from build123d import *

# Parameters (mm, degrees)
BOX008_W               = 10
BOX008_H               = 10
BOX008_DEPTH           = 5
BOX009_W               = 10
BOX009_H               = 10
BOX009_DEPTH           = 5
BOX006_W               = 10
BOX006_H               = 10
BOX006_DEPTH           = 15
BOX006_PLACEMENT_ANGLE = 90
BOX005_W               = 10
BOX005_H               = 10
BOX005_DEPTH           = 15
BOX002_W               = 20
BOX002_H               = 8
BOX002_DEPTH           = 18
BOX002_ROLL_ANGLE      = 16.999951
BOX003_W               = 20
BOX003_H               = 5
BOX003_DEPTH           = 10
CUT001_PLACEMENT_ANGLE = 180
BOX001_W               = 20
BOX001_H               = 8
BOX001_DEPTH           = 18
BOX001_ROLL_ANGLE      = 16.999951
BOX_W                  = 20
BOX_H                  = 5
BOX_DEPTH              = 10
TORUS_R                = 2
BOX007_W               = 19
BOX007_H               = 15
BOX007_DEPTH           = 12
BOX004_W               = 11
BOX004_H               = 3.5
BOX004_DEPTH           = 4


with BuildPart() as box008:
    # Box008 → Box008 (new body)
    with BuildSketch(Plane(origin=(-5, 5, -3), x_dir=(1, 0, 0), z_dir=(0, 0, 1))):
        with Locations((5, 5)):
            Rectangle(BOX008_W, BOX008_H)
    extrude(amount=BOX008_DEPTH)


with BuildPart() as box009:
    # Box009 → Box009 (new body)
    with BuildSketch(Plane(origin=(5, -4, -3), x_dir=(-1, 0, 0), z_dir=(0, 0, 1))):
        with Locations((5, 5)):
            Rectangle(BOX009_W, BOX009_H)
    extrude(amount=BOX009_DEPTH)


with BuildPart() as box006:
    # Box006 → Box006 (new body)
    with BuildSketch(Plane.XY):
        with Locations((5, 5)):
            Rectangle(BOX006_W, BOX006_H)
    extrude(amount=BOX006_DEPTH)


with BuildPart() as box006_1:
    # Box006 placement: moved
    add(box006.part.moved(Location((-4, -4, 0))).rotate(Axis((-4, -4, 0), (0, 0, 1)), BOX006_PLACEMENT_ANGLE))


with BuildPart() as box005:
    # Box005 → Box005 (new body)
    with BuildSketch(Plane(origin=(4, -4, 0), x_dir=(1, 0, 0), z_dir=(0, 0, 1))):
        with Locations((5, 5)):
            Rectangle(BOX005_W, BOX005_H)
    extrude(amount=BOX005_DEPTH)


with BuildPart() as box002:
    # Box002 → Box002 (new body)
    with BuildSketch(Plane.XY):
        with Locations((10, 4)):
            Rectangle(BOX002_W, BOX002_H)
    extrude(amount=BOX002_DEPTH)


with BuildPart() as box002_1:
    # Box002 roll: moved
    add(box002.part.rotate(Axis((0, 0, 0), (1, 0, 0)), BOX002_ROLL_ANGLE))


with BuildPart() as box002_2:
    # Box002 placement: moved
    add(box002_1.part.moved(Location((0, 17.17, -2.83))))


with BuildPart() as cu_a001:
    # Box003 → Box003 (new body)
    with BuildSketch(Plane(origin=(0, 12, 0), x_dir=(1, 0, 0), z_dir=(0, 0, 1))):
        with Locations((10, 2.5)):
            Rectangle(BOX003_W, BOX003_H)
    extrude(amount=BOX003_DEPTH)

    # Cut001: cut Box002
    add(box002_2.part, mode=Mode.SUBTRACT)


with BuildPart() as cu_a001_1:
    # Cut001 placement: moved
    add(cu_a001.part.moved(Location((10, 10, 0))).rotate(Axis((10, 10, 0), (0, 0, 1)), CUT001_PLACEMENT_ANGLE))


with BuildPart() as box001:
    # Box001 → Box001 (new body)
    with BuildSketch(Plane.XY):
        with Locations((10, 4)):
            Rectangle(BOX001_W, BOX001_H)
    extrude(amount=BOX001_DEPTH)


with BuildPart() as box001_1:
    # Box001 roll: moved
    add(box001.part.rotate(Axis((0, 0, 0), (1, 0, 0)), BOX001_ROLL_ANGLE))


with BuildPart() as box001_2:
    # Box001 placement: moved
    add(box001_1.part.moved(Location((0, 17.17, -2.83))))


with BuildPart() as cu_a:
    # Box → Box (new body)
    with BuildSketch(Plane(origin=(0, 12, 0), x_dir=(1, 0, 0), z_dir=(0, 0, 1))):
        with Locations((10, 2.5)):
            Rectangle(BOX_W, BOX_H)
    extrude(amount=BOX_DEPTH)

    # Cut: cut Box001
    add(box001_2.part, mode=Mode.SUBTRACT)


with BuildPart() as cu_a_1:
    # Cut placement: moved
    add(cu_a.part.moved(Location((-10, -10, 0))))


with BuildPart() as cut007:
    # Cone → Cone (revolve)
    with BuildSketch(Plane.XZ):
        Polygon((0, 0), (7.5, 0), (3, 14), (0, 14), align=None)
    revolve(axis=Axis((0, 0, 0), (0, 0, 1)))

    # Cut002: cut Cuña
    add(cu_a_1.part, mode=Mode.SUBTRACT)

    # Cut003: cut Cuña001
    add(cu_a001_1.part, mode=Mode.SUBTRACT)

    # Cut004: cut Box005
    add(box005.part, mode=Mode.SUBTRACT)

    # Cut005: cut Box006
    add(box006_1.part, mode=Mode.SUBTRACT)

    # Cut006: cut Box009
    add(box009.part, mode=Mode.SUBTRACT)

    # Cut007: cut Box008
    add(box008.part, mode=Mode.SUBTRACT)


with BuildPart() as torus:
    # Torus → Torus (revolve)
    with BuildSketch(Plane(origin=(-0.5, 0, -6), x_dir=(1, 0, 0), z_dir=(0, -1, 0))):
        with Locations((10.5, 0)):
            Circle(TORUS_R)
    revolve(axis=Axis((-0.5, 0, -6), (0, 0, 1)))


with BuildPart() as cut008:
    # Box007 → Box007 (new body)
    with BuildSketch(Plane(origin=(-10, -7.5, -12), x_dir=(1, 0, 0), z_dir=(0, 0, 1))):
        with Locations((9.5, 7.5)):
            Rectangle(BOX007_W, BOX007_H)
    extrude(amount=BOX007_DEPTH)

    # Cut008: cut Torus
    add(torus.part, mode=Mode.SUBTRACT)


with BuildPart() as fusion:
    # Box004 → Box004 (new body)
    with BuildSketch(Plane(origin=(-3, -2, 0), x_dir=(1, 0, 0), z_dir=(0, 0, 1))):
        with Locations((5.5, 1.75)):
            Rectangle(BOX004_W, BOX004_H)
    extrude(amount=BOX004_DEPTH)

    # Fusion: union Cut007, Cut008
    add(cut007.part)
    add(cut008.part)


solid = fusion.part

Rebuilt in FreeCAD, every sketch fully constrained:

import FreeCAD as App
import Part
import Sketcher
from FreeCAD import Vector
Q = App.Units.Quantity


def add_polygon(sketch, points):
    """Adds a closed chain of lines whose ends are joined by coincident constraints."""
    first, n = sketch.GeometryCount, len(points)
    for a, b in zip(points, points[1:] + points[:1]):
        sketch.addGeometry(Part.LineSegment(App.Vector(*a, 0), App.Vector(*b, 0)), False)
    for i in range(n):
        sketch.addConstraint(Sketcher.Constraint("Coincident", first + i, 2, first + (i + 1) % n, 1))

doc = App.newDocument("Part")
body = doc.addObject("PartDesign::Body", "Body")

# Sketch on XY plane
sketch1 = body.newObject("Sketcher::SketchObject", "Sketch")
sketch1.AttachmentSupport = (doc.getObject("XY_Plane"), [""])
sketch1.MapMode = "FlatFace"
sketch1.AttachmentOffset = App.Placement(Vector(0, 0, -3), App.Rotation())
add_polygon(sketch1, [(-5, 15), (-5, 5), (5, 5), (5, 15)])  # lines 0-3
sketch1.addConstraint([
    Sketcher.Constraint("Vertical", 0),
    Sketcher.Constraint("Horizontal", 1),
    Sketcher.Constraint("Vertical", 2),
    Sketcher.Constraint("Horizontal", 3),
    Sketcher.Constraint("Equal", 3, 0),
    Sketcher.Constraint("DistanceX", 1, 1, 1, 2, Q("10 mm")),
    Sketcher.Constraint("DistanceX", 0, 2, -1, 1, Q("5 mm")),
    Sketcher.Constraint("DistanceY", -1, 1, 0, 2, Q("5 mm")),
])
pad1 = body.newObject("PartDesign::Pad", "Pad")
pad1.Profile = sketch1
pad1.Length = 5
body2 = doc.addObject("PartDesign::Body", "Body001")

# Sketch on XY plane
sketch2 = body2.newObject("Sketcher::SketchObject", "Sketch001")
sketch2.AttachmentSupport = (doc.getObject("XY_Plane001"), [""])
sketch2.MapMode = "FlatFace"
sketch2.AttachmentOffset = App.Placement(Vector(0, 0, -3), App.Rotation())
add_polygon(sketch2, [(5, -14), (5, -4), (-5, -4), (-5, -14)])  # lines 0-3
sketch2.addConstraint([
    Sketcher.Constraint("Vertical", 0),
    Sketcher.Constraint("Horizontal", 1),
    Sketcher.Constraint("Vertical", 2),
    Sketcher.Constraint("Horizontal", 3),
    Sketcher.Constraint("Equal", 3, 0),
    Sketcher.Constraint("DistanceX", 1, 2, 1, 1, Q("10 mm")),
    Sketcher.Constraint("DistanceX", -1, 1, 0, 2, Q("5 mm")),
    Sketcher.Constraint("DistanceY", 0, 2, -1, 1, Q("4 mm")),
])
pad2 = body2.newObject("PartDesign::Pad", "Pad001")
pad2.Profile = sketch2
pad2.Length = 5
body3 = doc.addObject("PartDesign::Body", "Body002")

# Sketch on XY plane
sketch3 = body3.newObject("Sketcher::SketchObject", "Sketch002")
sketch3.AttachmentSupport = (doc.getObject("XY_Plane002"), [""])
sketch3.MapMode = "FlatFace"
add_polygon(sketch3, [(0, 10), (0, 0), (10, 0), (10, 10)])  # lines 0-3
sketch3.addConstraint([
    Sketcher.Constraint("Vertical", 0),
    Sketcher.Constraint("Horizontal", 1),
    Sketcher.Constraint("Vertical", 2),
    Sketcher.Constraint("Horizontal", 3),
    Sketcher.Constraint("Coincident", 0, 2, -1, 1),
    Sketcher.Constraint("Equal", 3, 0),
    Sketcher.Constraint("DistanceX", 1, 1, 1, 2, Q("10 mm")),
])
pad3 = body3.newObject("PartDesign::Pad", "Pad002")
pad3.Profile = sketch3
pad3.Length = 15
body4 = doc.addObject("PartDesign::Body", "Body003")
doc.recompute()

body3.Placement = App.Placement(Vector(-4, -4, 0), App.Rotation(Vector(0, 0, 1), 90))
boolean = body4.newObject("PartDesign::Boolean", "Boolean")
boolean.Type = "Fuse"
boolean.addObjects([body3])
body5 = doc.addObject("PartDesign::Body", "Body004")

# Sketch on XY plane
sketch4 = body5.newObject("Sketcher::SketchObject", "Sketch003")
sketch4.AttachmentSupport = (doc.getObject("XY_Plane004"), [""])
sketch4.MapMode = "FlatFace"
add_polygon(sketch4, [(4, 6), (4, -4), (14, -4), (14, 6)])  # lines 0-3
sketch4.addConstraint([
    Sketcher.Constraint("Vertical", 0),
    Sketcher.Constraint("Horizontal", 1),
    Sketcher.Constraint("Vertical", 2),
    Sketcher.Constraint("Horizontal", 3),
    Sketcher.Constraint("Equal", 3, 0),
    Sketcher.Constraint("DistanceX", 1, 1, 1, 2, Q("10 mm")),
    Sketcher.Constraint("DistanceX", -1, 1, 0, 2, Q("4 mm")),
    Sketcher.Constraint("DistanceY", 0, 2, -1, 1, Q("4 mm")),
])
pad4 = body5.newObject("PartDesign::Pad", "Pad003")
pad4.Profile = sketch4
pad4.Length = 15
body6 = doc.addObject("PartDesign::Body", "Body005")

# Sketch on XY plane
sketch5 = body6.newObject("Sketcher::SketchObject", "Sketch004")
sketch5.AttachmentSupport = (doc.getObject("XY_Plane005"), [""])
sketch5.MapMode = "FlatFace"
add_polygon(sketch5, [(0, 8), (0, 0), (20, 0), (20, 8)])  # lines 0-3
sketch5.addConstraint([
    Sketcher.Constraint("Vertical", 0),
    Sketcher.Constraint("Horizontal", 1),
    Sketcher.Constraint("Vertical", 2),
    Sketcher.Constraint("Horizontal", 3),
    Sketcher.Constraint("Coincident", 0, 2, -1, 1),
    Sketcher.Constraint("DistanceX", 1, 1, 1, 2, Q("20 mm")),
    Sketcher.Constraint("DistanceY", 0, 2, 0, 1, Q("8 mm")),
])
pad5 = body6.newObject("PartDesign::Pad", "Pad004")
pad5.Profile = sketch5
pad5.Length = 18
body7 = doc.addObject("PartDesign::Body", "Body006")
doc.recompute()

body6.Placement = App.Placement(Vector(0, 0, 0), App.Rotation(Vector(1, 0, 0), 16.999951))
boolean2 = body7.newObject("PartDesign::Boolean", "Boolean001")
boolean2.Type = "Fuse"
boolean2.addObjects([body6])
body8 = doc.addObject("PartDesign::Body", "Body007")
doc.recompute()

body7.Placement = App.Placement(Vector(0, 17.17, -2.83), App.Rotation(Vector(0, 0, 1), 0))
boolean3 = body8.newObject("PartDesign::Boolean", "Boolean002")
boolean3.Type = "Fuse"
boolean3.addObjects([body7])
body9 = doc.addObject("PartDesign::Body", "Body008")

# Sketch on XY plane
sketch6 = body9.newObject("Sketcher::SketchObject", "Sketch005")
sketch6.AttachmentSupport = (doc.getObject("XY_Plane008"), [""])
sketch6.MapMode = "FlatFace"
add_polygon(sketch6, [(0, 17), (0, 12), (20, 12), (20, 17)])  # lines 0-3
sketch6.addConstraint([
    Sketcher.Constraint("Vertical", 0),
    Sketcher.Constraint("Horizontal", 1),
    Sketcher.Constraint("Vertical", 2),
    Sketcher.Constraint("Horizontal", 3),
    Sketcher.Constraint("PointOnObject", 0, 2, -2),
    Sketcher.Constraint("DistanceX", 1, 1, 1, 2, Q("20 mm")),
    Sketcher.Constraint("DistanceY", 0, 2, 0, 1, Q("5 mm")),
    Sketcher.Constraint("DistanceY", -1, 1, 0, 2, Q("12 mm")),
])
pad6 = body9.newObject("PartDesign::Pad", "Pad005")
pad6.Profile = sketch6
pad6.Length = 10
doc.recompute()

boolean4 = body9.newObject("PartDesign::Boolean", "Boolean003")
boolean4.Type = "Cut"
boolean4.addObjects([body8])
body10 = doc.addObject("PartDesign::Body", "Body009")
doc.recompute()

body9.Placement = App.Placement(Vector(10, 10, 0), App.Rotation(Vector(0, 0, 1), 180))
boolean5 = body10.newObject("PartDesign::Boolean", "Boolean004")
boolean5.Type = "Fuse"
boolean5.addObjects([body9])
body11 = doc.addObject("PartDesign::Body", "Body010")

# Sketch on XY plane
sketch7 = body11.newObject("Sketcher::SketchObject", "Sketch006")
sketch7.AttachmentSupport = (doc.getObject("XY_Plane010"), [""])
sketch7.MapMode = "FlatFace"
add_polygon(sketch7, [(0, 8), (0, 0), (20, 0), (20, 8)])  # lines 0-3
sketch7.addConstraint([
    Sketcher.Constraint("Vertical", 0),
    Sketcher.Constraint("Horizontal", 1),
    Sketcher.Constraint("Vertical", 2),
    Sketcher.Constraint("Horizontal", 3),
    Sketcher.Constraint("Coincident", 0, 2, -1, 1),
    Sketcher.Constraint("DistanceX", 1, 1, 1, 2, Q("20 mm")),
    Sketcher.Constraint("DistanceY", 0, 2, 0, 1, Q("8 mm")),
])
pad7 = body11.newObject("PartDesign::Pad", "Pad006")
pad7.Profile = sketch7
pad7.Length = 18
body12 = doc.addObject("PartDesign::Body", "Body011")
doc.recompute()

body11.Placement = App.Placement(Vector(0, 0, 0), App.Rotation(Vector(1, 0, 0), 16.999951))
boolean6 = body12.newObject("PartDesign::Boolean", "Boolean005")
boolean6.Type = "Fuse"
boolean6.addObjects([body11])
body13 = doc.addObject("PartDesign::Body", "Body012")
doc.recompute()

body12.Placement = App.Placement(Vector(0, 17.17, -2.83), App.Rotation(Vector(0, 0, 1), 0))
boolean7 = body13.newObject("PartDesign::Boolean", "Boolean006")
boolean7.Type = "Fuse"
boolean7.addObjects([body12])
body14 = doc.addObject("PartDesign::Body", "Body013")

# Sketch on XY plane
sketch8 = body14.newObject("Sketcher::SketchObject", "Sketch007")
sketch8.AttachmentSupport = (doc.getObject("XY_Plane013"), [""])
sketch8.MapMode = "FlatFace"
add_polygon(sketch8, [(0, 17), (0, 12), (20, 12), (20, 17)])  # lines 0-3
sketch8.addConstraint([
    Sketcher.Constraint("Vertical", 0),
    Sketcher.Constraint("Horizontal", 1),
    Sketcher.Constraint("Vertical", 2),
    Sketcher.Constraint("Horizontal", 3),
    Sketcher.Constraint("PointOnObject", 0, 2, -2),
    Sketcher.Constraint("DistanceX", 1, 1, 1, 2, Q("20 mm")),
    Sketcher.Constraint("DistanceY", 0, 2, 0, 1, Q("5 mm")),
    Sketcher.Constraint("DistanceY", -1, 1, 0, 2, Q("12 mm")),
])
pad8 = body14.newObject("PartDesign::Pad", "Pad007")
pad8.Profile = sketch8
pad8.Length = 10
doc.recompute()

boolean8 = body14.newObject("PartDesign::Boolean", "Boolean007")
boolean8.Type = "Cut"
boolean8.addObjects([body13])
body15 = doc.addObject("PartDesign::Body", "Body014")
doc.recompute()

body14.Placement = App.Placement(Vector(-10, -10, 0), App.Rotation(Vector(0, 0, 1), 0))
boolean9 = body15.newObject("PartDesign::Boolean", "Boolean008")
boolean9.Type = "Fuse"
boolean9.addObjects([body14])
body16 = doc.addObject("PartDesign::Body", "Body015")

# Sketch on XZ plane
sketch9 = body16.newObject("Sketcher::SketchObject", "Sketch008")
sketch9.AttachmentSupport = (doc.getObject("XZ_Plane015"), [""])
sketch9.MapMode = "FlatFace"
add_polygon(sketch9, [(0, 0), (7.5, 0), (3, 14), (0, 14)])  # lines 0-3
sketch9.addConstraint([
    Sketcher.Constraint("Horizontal", 0),
    Sketcher.Constraint("Horizontal", 2),
    Sketcher.Constraint("Vertical", 3),
    Sketcher.Constraint("Coincident", 3, 2, -1, 1),
    Sketcher.Constraint("DistanceX", 2, 2, 2, 1, Q("3 mm")),
    Sketcher.Constraint("DistanceY", 3, 2, 3, 1, Q("14 mm")),
    Sketcher.Constraint("DistanceX", 0, 1, 0, 2, Q("7.5 mm")),
])
revolution = body16.newObject("PartDesign::Revolution", "Revolution")
revolution.Profile = sketch9
revolution.ReferenceAxis = (sketch9, ["V_Axis"])
revolution.Angle = 360
doc.recompute()

boolean10 = body16.newObject("PartDesign::Boolean", "Boolean009")
boolean10.Type = "Cut"
boolean10.addObjects([body15])
doc.recompute()

boolean11 = body16.newObject("PartDesign::Boolean", "Boolean010")
boolean11.Type = "Cut"
boolean11.addObjects([body10])
doc.recompute()

boolean12 = body16.newObject("PartDesign::Boolean", "Boolean011")
boolean12.Type = "Cut"
boolean12.addObjects([body5])
doc.recompute()

boolean13 = body16.newObject("PartDesign::Boolean", "Boolean012")
boolean13.Type = "Cut"
boolean13.addObjects([body4])
doc.recompute()

boolean14 = body16.newObject("PartDesign::Boolean", "Boolean013")
boolean14.Type = "Cut"
boolean14.addObjects([body2])
doc.recompute()

boolean15 = body16.newObject("PartDesign::Boolean", "Boolean014")
boolean15.Type = "Cut"
boolean15.addObjects([body])
body17 = doc.addObject("PartDesign::Body", "Body016")

# Sketch on XZ plane
sketch10 = body17.newObject("Sketcher::SketchObject", "Sketch009")
sketch10.AttachmentSupport = (doc.getObject("XZ_Plane016"), [""])
sketch10.MapMode = "FlatFace"
sketch10.addGeometry(Part.Circle(Vector(10, -6, 0), Vector(0, 0, 1), 2), False)
sketch10.addGeometry(Part.LineSegment(Vector(-0.5, -6, 0), Vector(-0.5, 4, 0)), True)  # axis
sketch10.addConstraint([
    Sketcher.Constraint("Vertical", 1),
    Sketcher.Constraint("Horizontal", 0, 3, 1, 1),
    Sketcher.Constraint("Diameter", 0, Q("4 mm")),
    Sketcher.Constraint("DistanceY", 1, 1, 1, 2, Q("10 mm")),
    Sketcher.Constraint("DistanceX", -1, 1, 0, 3, Q("10 mm")),
    Sketcher.Constraint("DistanceY", 0, 3, -1, 1, Q("6 mm")),
    Sketcher.Constraint("DistanceX", 1, 1, -1, 1, Q("0.5 mm")),
])
revolution2 = body17.newObject("PartDesign::Revolution", "Revolution001")
revolution2.Profile = sketch10
revolution2.ReferenceAxis = (sketch10, ["Axis0"])
revolution2.Angle = 360
body18 = doc.addObject("PartDesign::Body", "Body017")

# Sketch on XY plane
sketch11 = body18.newObject("Sketcher::SketchObject", "Sketch010")
sketch11.AttachmentSupport = (doc.getObject("XY_Plane017"), [""])
sketch11.MapMode = "FlatFace"
sketch11.AttachmentOffset = App.Placement(Vector(0, 0, -12), App.Rotation())
add_polygon(sketch11, [(-10, 8), (-10, -8), (9, -8), (9, 8)])  # lines 0-3
sketch11.addConstraint([
    Sketcher.Constraint("Vertical", 0),
    Sketcher.Constraint("Horizontal", 1),
    Sketcher.Constraint("Vertical", 2),
    Sketcher.Constraint("Horizontal", 3),
    Sketcher.Constraint("DistanceX", 1, 1, 1, 2, Q("19 mm")),
    Sketcher.Constraint("DistanceY", 0, 2, 0, 1, Q("15 mm")),
    Sketcher.Constraint("DistanceX", 0, 2, -1, 1, Q("10 mm")),
    Sketcher.Constraint("DistanceY", 0, 2, -1, 1, Q("7.5 mm")),
])
pad9 = body18.newObject("PartDesign::Pad", "Pad008")
pad9.Profile = sketch11
pad9.Length = 12
doc.recompute()

boolean16 = body18.newObject("PartDesign::Boolean", "Boolean015")
boolean16.Type = "Cut"
boolean16.addObjects([body17])
body19 = doc.addObject("PartDesign::Body", "Body018")

# Sketch on XY plane
sketch12 = body19.newObject("Sketcher::SketchObject", "Sketch011")
sketch12.AttachmentSupport = (doc.getObject("XY_Plane018"), [""])
sketch12.MapMode = "FlatFace"
add_polygon(sketch12, [(-3, 1.5), (-3, -2), (8, -2), (8, 1.5)])  # lines 0-3
sketch12.addConstraint([
    Sketcher.Constraint("Vertical", 0),
    Sketcher.Constraint("Horizontal", 1),
    Sketcher.Constraint("Vertical", 2),
    Sketcher.Constraint("Horizontal", 3),
    Sketcher.Constraint("DistanceX", 1, 1, 1, 2, Q("11 mm")),
    Sketcher.Constraint("DistanceY", 0, 2, 0, 1, Q("3.5 mm")),
    Sketcher.Constraint("DistanceX", 0, 2, -1, 1, Q("3 mm")),
    Sketcher.Constraint("DistanceY", 0, 2, -1, 1, Q("2 mm")),
])
pad10 = body19.newObject("PartDesign::Pad", "Pad009")
pad10.Profile = sketch12
pad10.Length = 4
doc.recompute()

boolean17 = body19.newObject("PartDesign::Boolean", "Boolean016")
boolean17.Type = "Fuse"
boolean17.addObjects([body16])
doc.recompute()

boolean18 = body19.newObject("PartDesign::Boolean", "Boolean017")
boolean18.Type = "Fuse"
boolean18.addObjects([body18])

doc.recompute()
